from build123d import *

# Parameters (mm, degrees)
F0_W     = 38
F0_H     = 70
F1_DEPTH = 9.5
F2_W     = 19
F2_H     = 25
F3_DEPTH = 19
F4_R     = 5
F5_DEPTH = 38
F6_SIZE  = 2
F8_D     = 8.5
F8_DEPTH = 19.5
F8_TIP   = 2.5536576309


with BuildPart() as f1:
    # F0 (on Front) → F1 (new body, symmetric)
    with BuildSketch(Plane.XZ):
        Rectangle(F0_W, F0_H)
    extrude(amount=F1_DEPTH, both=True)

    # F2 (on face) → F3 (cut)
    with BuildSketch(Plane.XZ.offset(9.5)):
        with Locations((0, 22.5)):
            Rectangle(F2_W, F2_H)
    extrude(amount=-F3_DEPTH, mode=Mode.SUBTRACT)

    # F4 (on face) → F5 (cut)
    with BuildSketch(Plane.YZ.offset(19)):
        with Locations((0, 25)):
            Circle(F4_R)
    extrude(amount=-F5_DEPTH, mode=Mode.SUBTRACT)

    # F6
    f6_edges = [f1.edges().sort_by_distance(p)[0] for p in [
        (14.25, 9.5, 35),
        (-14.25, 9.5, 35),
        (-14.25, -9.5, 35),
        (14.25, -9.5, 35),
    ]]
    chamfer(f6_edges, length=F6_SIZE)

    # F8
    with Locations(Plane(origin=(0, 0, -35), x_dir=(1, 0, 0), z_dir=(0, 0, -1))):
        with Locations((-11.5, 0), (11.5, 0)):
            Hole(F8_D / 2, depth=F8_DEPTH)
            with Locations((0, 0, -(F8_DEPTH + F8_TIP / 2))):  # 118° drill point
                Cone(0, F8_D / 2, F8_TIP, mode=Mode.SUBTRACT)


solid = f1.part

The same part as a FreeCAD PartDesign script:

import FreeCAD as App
import Part
import Sketcher

V = App.Vector


def edges_at(feature, points):
    """Names of the edges that pass closest to the given points."""
    edges = feature.Shape.Edges
    near = lambda p: min(range(len(edges)), key=lambda i: edges[i].distToShape(Part.Vertex(*p))[0])
    return sorted({f"Edge{near(p) + 1}" for p in points})


def add_polygon(sketch, points):
    """Adds a closed chain of lines whose ends are joined by coincident constraints."""
    first, n = sketch.GeometryCount, len(points)
    for a, b in zip(points, points[1:] + points[:1]):
        sketch.addGeometry(Part.LineSegment(App.Vector(*a, 0), App.Vector(*b, 0)), False)
    for i in range(n):
        sketch.addConstraint(Sketcher.Constraint("Coincident", first + i, 2, first + (i + 1) % n, 1))

doc = App.newDocument("Part")
body = doc.addObject("PartDesign::Body", "Body")

sketch1 = doc.addObject("Sketcher::SketchObject", "Sketch")
body.addObject(sketch1)
sketch1.AttachmentSupport = (doc.XZ_Plane, [""])
sketch1.MapMode = "FlatFace"
add_polygon(sketch1, [(-19, 35), (-19, -35), (19, -35), (19, 35)])
sketch1.addConstraint([
    Sketcher.Constraint("Vertical", 0),
    Sketcher.Constraint("Horizontal", 1),
    Sketcher.Constraint("Vertical", 2),
    Sketcher.Constraint("Horizontal", 3),
    Sketcher.Constraint("Symmetric", 0, 2, 2, 2, -1, 1),
    Sketcher.Constraint("DistanceX", 1, 1, 1, 2, 38.0),
    Sketcher.Constraint("DistanceY", 0, 2, 0, 1, 70.0),
])
pad1 = doc.addObject("PartDesign::Pad", "Pad")
body.addObject(pad1)
pad1.Profile = sketch1
pad1.Length = 19
pad1.Midplane = True

sketch2 = doc.addObject("Sketcher::SketchObject", "Sketch001")
body.addObject(sketch2)
sketch2.AttachmentSupport = (doc.XZ_Plane, [""])
sketch2.MapMode = "FlatFace"
sketch2.AttachmentOffset = App.Placement(V(0, 0, 9.5), App.Rotation())
add_polygon(sketch2, [(-9.5, 35), (-9.5, 10), (9.5, 10), (9.5, 35)])
sketch2.addConstraint([
    Sketcher.Constraint("Vertical", 0),
    Sketcher.Constraint("Horizontal", 1),
    Sketcher.Constraint("Vertical", 2),
    Sketcher.Constraint("Horizontal", 3),
    Sketcher.Constraint("DistanceX", 1, 1, 1, 2, 19.0),
    Sketcher.Constraint("DistanceY", 0, 2, 0, 1, 25.0),
    Sketcher.Constraint("DistanceY", -1, 1, 0, 2, 10.0),
    Sketcher.Constraint("DistanceX", 0, 2, -1, 1, 9.5),
])
pocket1 = doc.addObject("PartDesign::Pocket", "Pocket")
body.addObject(pocket1)
pocket1.Profile = sketch2
pocket1.Length = 19

sketch3 = doc.addObject("Sketcher::SketchObject", "Sketch002")
body.addObject(sketch3)
sketch3.AttachmentSupport = (doc.YZ_Plane, [""])
sketch3.MapMode = "FlatFace"
sketch3.AttachmentOffset = App.Placement(V(0, 0, 19), App.Rotation())
sketch3.addGeometry(Part.Circle(V(0, 25, 0), V(0, 0, 1), 5), False)
sketch3.addConstraint([
    Sketcher.Constraint("PointOnObject", 0, 3, -2),
    Sketcher.Constraint("Diameter", 0, 10.0),
    Sketcher.Constraint("DistanceY", -1, 1, 0, 3, 25.0),
])
pocket2 = doc.addObject("PartDesign::Pocket", "Pocket001")
body.addObject(pocket2)
pocket2.Profile = sketch3
pocket2.Length = 38
doc.recompute()

chamfer = doc.addObject("PartDesign::Chamfer", "Chamfer")
body.addObject(chamfer)
chamfer.Base = (pocket2, edges_at(pocket2, [
    (14.25, 9.5, 35),
    (-14.25, 9.5, 35),
    (-14.25, -9.5, 35),
    (14.25, -9.5, 35),
]))
chamfer.Size = 2

sketch4 = doc.addObject("Sketcher::SketchObject", "Sketch003")
body.addObject(sketch4)
sketch4.AttachmentSupport = (doc.XY_Plane, [""])
sketch4.MapMode = "FlatFace"
sketch4.AttachmentOffset = App.Placement(V(0, 0, -35), App.Rotation())
sketch4.addGeometry([
    Part.Circle(V(-11.5, 0, 0), V(0, 0, 1), 4.25),
    Part.Circle(V(11.5, 0, 0), V(0, 0, 1), 4.25),
], False)
sketch4.addConstraint([
    Sketcher.Constraint("Equal", 0, 1),
    Sketcher.Constraint("Symmetric", 0, 3, 1, 3, -1, 1),
    Sketcher.Constraint("PointOnObject", 0, 3, -1),
    Sketcher.Constraint("Diameter", 0, 8.5),
    Sketcher.Constraint("DistanceX", 0, 3, 1, 3, 23.0),
])
doc.recompute()
hole = doc.addObject("PartDesign::Hole", "Hole")
body.addObject(hole)
hole.Profile = sketch4
hole.ThreadType = "None"
hole.Diameter = 8.5
hole.DepthType = "Dimension"
hole.Depth = 19.5
hole.DrillPoint = "Angled"
hole.DrillPointAngle = 118
hole.Reversed = True

doc.recompute()
